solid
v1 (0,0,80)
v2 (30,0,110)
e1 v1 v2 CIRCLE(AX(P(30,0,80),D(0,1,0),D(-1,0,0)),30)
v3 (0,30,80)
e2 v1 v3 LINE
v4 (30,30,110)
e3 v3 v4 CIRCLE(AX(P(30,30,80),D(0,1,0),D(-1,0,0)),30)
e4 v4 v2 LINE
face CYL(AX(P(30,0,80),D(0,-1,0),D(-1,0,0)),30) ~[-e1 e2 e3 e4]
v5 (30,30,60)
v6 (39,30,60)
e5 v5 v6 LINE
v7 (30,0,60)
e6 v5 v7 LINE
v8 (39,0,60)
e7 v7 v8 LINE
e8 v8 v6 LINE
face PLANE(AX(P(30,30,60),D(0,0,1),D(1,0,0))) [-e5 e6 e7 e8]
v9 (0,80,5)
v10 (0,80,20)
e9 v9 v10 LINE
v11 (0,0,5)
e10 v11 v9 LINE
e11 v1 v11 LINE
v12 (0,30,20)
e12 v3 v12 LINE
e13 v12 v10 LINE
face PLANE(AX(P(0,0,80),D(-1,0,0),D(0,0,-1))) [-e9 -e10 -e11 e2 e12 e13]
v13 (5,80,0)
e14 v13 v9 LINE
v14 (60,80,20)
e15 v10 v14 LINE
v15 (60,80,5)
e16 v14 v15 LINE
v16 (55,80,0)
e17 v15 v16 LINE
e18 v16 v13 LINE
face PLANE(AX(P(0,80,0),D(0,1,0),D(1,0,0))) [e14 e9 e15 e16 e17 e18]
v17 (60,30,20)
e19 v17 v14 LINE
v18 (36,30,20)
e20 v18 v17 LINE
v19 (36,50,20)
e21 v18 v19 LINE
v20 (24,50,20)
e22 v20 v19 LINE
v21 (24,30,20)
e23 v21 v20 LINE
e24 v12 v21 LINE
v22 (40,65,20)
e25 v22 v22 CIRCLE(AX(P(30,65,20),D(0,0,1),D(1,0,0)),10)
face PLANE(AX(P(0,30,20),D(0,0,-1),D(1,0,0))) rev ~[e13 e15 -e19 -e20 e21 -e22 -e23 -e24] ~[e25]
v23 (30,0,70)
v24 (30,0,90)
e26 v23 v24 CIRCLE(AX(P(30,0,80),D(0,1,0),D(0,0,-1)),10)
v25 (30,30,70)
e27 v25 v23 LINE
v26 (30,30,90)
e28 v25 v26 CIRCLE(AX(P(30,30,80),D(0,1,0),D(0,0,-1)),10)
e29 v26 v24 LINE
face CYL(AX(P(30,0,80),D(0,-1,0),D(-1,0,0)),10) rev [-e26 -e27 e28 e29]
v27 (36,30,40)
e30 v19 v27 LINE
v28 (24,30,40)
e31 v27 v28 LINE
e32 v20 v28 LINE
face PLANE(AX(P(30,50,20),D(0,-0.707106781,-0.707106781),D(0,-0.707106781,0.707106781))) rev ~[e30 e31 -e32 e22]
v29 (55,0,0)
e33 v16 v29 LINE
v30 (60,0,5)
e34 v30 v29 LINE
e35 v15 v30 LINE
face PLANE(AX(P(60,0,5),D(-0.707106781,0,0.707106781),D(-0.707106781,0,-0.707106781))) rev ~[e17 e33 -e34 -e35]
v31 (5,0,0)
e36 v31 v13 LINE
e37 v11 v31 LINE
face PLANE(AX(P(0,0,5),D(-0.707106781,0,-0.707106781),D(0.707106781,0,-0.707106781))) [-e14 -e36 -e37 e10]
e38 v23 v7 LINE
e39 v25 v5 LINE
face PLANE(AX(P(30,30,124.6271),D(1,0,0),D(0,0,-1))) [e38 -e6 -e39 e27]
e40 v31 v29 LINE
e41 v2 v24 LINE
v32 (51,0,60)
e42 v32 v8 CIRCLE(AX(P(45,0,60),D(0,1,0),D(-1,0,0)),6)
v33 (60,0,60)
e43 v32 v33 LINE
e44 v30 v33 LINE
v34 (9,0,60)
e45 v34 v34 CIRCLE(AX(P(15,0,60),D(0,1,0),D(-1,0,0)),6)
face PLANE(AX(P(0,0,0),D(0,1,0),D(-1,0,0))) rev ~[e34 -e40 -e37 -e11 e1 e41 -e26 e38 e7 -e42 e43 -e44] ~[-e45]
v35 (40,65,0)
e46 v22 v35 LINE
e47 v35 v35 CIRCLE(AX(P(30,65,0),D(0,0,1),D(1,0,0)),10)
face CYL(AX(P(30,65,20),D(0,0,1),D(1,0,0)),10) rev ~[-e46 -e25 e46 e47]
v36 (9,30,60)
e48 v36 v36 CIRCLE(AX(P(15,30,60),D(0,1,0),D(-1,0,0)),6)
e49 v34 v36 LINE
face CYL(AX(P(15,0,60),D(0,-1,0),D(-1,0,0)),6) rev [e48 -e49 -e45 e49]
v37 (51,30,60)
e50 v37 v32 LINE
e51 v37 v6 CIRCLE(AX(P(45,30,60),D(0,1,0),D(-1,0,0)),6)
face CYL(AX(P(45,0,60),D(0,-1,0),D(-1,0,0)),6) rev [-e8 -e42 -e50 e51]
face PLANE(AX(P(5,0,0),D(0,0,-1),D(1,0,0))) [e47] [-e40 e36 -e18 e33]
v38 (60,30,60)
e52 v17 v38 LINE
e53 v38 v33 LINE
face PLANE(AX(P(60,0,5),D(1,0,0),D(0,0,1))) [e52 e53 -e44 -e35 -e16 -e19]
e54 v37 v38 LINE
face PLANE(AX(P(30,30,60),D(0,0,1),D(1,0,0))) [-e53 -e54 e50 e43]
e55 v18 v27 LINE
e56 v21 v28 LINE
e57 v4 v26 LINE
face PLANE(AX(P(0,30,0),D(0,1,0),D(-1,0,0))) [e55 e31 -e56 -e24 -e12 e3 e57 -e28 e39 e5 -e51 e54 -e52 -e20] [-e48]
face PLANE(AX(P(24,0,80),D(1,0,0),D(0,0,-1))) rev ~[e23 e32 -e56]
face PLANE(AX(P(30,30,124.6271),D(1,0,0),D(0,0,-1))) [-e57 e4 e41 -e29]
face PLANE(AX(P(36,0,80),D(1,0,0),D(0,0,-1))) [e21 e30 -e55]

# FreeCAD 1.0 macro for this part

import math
import FreeCAD as App
import Part
import Sketcher
from FreeCAD import Vector
Q = App.Units.Quantity

doc = App.newDocument("Part")
body = doc.addObject("PartDesign::Body", "Body")

# Sketch on XZ plane
sketch1 = body.newObject("Sketcher::SketchObject", "Sketch")
sketch1.AttachmentSupport = (doc.getObject("XZ_Plane"), [""])
sketch1.MapMode = "FlatFace"
sketch1.addGeometry([
    Part.LineSegment(Vector(55, 0, 0), Vector(5, 0, 0)),  # 0
    Part.LineSegment(Vector(5, 0, 0), Vector(0, 5, 0)),  # 1
    Part.LineSegment(Vector(0, 5, 0), Vector(0, 80, 0)),  # 2
    Part.ArcOfCircle(Part.Circle(Vector(30, 80, 0), Vector(0, 0, 1), 30), math.radians(0), math.radians(180)),  # 3
    Part.LineSegment(Vector(60, 80, 0), Vector(60, 5, 0)),  # 4
    Part.LineSegment(Vector(60, 5, 0), Vector(55, 0, 0)),  # 5
    Part.Circle(Vector(45, 60, 0), Vector(0, 0, 1), 6),  # 6
    Part.Circle(Vector(30, 80, 0), Vector(0, 0, 1), 10),  # 7
    Part.Circle(Vector(15, 60, 0), Vector(0, 0, 1), 6),  # 8
], False)
sketch1.addConstraint([
    Sketcher.Constraint("Coincident", 0, 2, 1, 1),
    Sketcher.Constraint("Coincident", 1, 2, 2, 1),
    Sketcher.Constraint("Tangent", 2, 2, 3, 2),
    Sketcher.Constraint("Tangent", 3, 1, 4, 1),
    Sketcher.Constraint("Coincident", 4, 2, 5, 1),
    Sketcher.Constraint("Coincident", 5, 2, 0, 1),
    Sketcher.Constraint("Horizontal", 0),
    Sketcher.Constraint("Vertical", 2),
    Sketcher.Constraint("Vertical", 4),
    Sketcher.Constraint("Coincident", 7, 3, 3, 3),
    Sketcher.Constraint("Equal", 6, 8),
    Sketcher.Constraint("PointOnObject", 0, 2, -1),
    Sketcher.Constraint("PointOnObject", 1, 2, -2),
    Sketcher.Constraint("Perpendicular", 1, 5),
    Sketcher.Constraint("Horizontal", 6, 3, 8, 3),
    Sketcher.Constraint("Horizontal", 1, 2, 4, 2),
    Sketcher.Constraint("Equal", 1, 5),
    Sketcher.Constraint("Diameter", 6, Q("12 mm")),
    Sketcher.Constraint("Diameter", 7, Q("20 mm")),
    Sketcher.Constraint("DistanceY", -1, 1, 3, 3, Q("80 mm")),
    Sketcher.Constraint("DistanceX", -1, 1, 6, 3, Q("45 mm")),
    Sketcher.Constraint("DistanceX", -1, 1, 0, 2, Q("5 mm")),
    Sketcher.Constraint("Radius", 3, Q("30 mm")),
    Sketcher.Constraint("DistanceY", 6, 3, 3, 3, Q("20 mm")),
    Sketcher.Constraint("DistanceX", 8, 3, 3, 1, Q("45 mm")),
])
pad1 = body.newObject("PartDesign::Pad", "Pad")
pad1.Profile = sketch1
pad1.Length = 30
pad1.Reversed = True

# Sketch on XZ plane
sketch2 = body.newObject("Sketcher::SketchObject", "Sketch001")
sketch2.AttachmentSupport = (doc.getObject("XZ_Plane"), [""])
sketch2.MapMode = "FlatFace"
sketch2.AttachmentOffset = App.Placement(Vector(0, 0, -30), App.Rotation())
sketch2.addGeometry([
    Part.LineSegment(Vector(0, 5, 0), Vector(0, 20, 0)),  # 0
    Part.LineSegment(Vector(0, 20, 0), Vector(60, 20, 0)),  # 1
    Part.LineSegment(Vector(60, 20, 0), Vector(60, 5, 0)),  # 2
    Part.LineSegment(Vector(60, 5, 0), Vector(55, 0, 0)),  # 3
    Part.LineSegment(Vector(55, 0, 0), Vector(5, 0, 0)),  # 4
    Part.LineSegment(Vector(5, 0, 0), Vector(0, 5, 0)),  # 5
], False)
sketch2.addConstraint([
    Sketcher.Constraint("Coincident", 0, 2, 1, 1),
    Sketcher.Constraint("Coincident", 1, 2, 2, 1),
    Sketcher.Constraint("Coincident", 2, 2, 3, 1),
    Sketcher.Constraint("Coincident", 3, 2, 4, 1),
    Sketcher.Constraint("Coincident", 4, 2, 5, 1),
    Sketcher.Constraint("Coincident", 5, 2, 0, 1),
    Sketcher.Constraint("Vertical", 0),
    Sketcher.Constraint("Horizontal", 1),
    Sketcher.Constraint("Vertical", 2),
    Sketcher.Constraint("Horizontal", 4),
    Sketcher.Constraint("PointOnObject", 0, 2, -2),
    Sketcher.Constraint("PointOnObject", 3, 2, -1),
    Sketcher.Constraint("Perpendicular", 3, 5),
    Sketcher.Constraint("Horizontal", 2, 2, 5, 2),
    Sketcher.Constraint("Equal", 3, 5),
    Sketcher.Constraint("DistanceX", 1, 1, 1, 2, Q("60 mm")),
    Sketcher.Constraint("DistanceX", 4, 2, 4, 1, Q("50 mm")),
    Sketcher.Constraint("DistanceY", 0, 1, 0, 2, Q("15 mm")),
])
pad2 = body.newObject("PartDesign::Pad", "Pad001")
pad2.Profile = sketch2
pad2.Length = 50
pad2.Reversed = True

# Sketch on XY plane
sketch3 = body.newObject("Sketcher::SketchObject", "Sketch002")
sketch3.AttachmentSupport = (doc.getObject("XY_Plane"), [""])
sketch3.MapMode = "FlatFace"
sketch3.AttachmentOffset = App.Placement(Vector(0, 0, 20), App.Rotation())
sketch3.addGeometry(Part.Circle(Vector(30, 65, 0), Vector(0, 0, 1), 10), False)
sketch3.addConstraint([
    Sketcher.Constraint("Diameter", 0, Q("20 mm")),
    Sketcher.Constraint("DistanceX", -1, 1, 0, 3, Q("30 mm")),
    Sketcher.Constraint("DistanceY", -1, 1, 0, 3, Q("65 mm")),
])
pocket1 = body.newObject("PartDesign::Pocket", "Pocket")
pocket1.Profile = sketch3
pocket1.Length = 50

# Sketch on YZ plane
sketch4 = body.newObject("Sketcher::SketchObject", "Sketch003")
sketch4.AttachmentSupport = (doc.getObject("YZ_Plane"), [""])
sketch4.MapMode = "FlatFace"
sketch4.AttachmentOffset = App.Placement(Vector(0, 0, 30), App.Rotation())
sketch4.addGeometry([
    Part.LineSegment(Vector(30, 40, 0), Vector(30, 20, 0)),
    Part.LineSegment(Vector(30, 20, 0), Vector(50, 20, 0)),
    Part.LineSegment(Vector(50, 20, 0), Vector(30, 40, 0)),
], False)
sketch4.addConstraint([
    Sketcher.Constraint("Coincident", 0, 2, 1, 1),
    Sketcher.Constraint("Coincident", 1, 2, 2, 1),
    Sketcher.Constraint("Coincident", 2, 2, 0, 1),
    Sketcher.Constraint("Vertical", 0),
    Sketcher.Constraint("Horizontal", 1),
    Sketcher.Constraint("Equal", 1, 0),
    Sketcher.Constraint("DistanceX", 1, 1, 1, 2, Q("20 mm")),
    Sketcher.Constraint("DistanceY", -1, 1, 0, 2, Q("20 mm")),
    Sketcher.Constraint("DistanceX", -1, 1, 0, 2, Q("30 mm")),
])
pad3 = body.newObject("PartDesign::Pad", "Pad002")
pad3.Profile = sketch4
pad3.Length = 12
pad3.Midplane = True

# Sketch on XZ plane
sketch5 = body.newObject("Sketcher::SketchObject", "Sketch004")
sketch5.AttachmentSupport = (doc.getObject("XZ_Plane"), [""])
sketch5.MapMode = "FlatFace"
sketch5.AttachmentOffset = App.Placement(Vector(0, 0, -30), App.Rotation())
sketch5.addGeometry([
    Part.LineSegment(Vector(72, 60, 0), Vector(30, 60, 0)),
    Part.LineSegment(Vector(30, 60, 0), Vector(30, 125, 0)),
    Part.LineSegment(Vector(30, 125, 0), Vector(72, 125, 0)),
    Part.LineSegment(Vector(72, 125, 0), Vector(72, 60, 0)),
], False)
sketch5.addConstraint([
    Sketcher.Constraint("Coincident", 0, 2, 1, 1),
    Sketcher.Constraint("Coincident", 1, 2, 2, 1),
    Sketcher.Constraint("Coincident", 2, 2, 3, 1),
    Sketcher.Constraint("Coincident", 3, 2, 0, 1),
    Sketcher.Constraint("Horizontal", 0),
    Sketcher.Constraint("Vertical", 1),
    Sketcher.Constraint("Horizontal", 2),
    Sketcher.Constraint("Vertical", 3),
    Sketcher.Constraint("DistanceX", -1, 1, 0, 2, Q("30 mm")),
    Sketcher.Constraint("DistanceY", -1, 1, 0, 2, Q("60 mm")),
    Sketcher.Constraint("DistanceX", 0, 2, 0, 1, Q("41.643 mm")),
    Sketcher.Constraint("DistanceY", 1, 1, 1, 2, Q("64.627 mm")),
])
pocket2 = body.newObject("PartDesign::Pocket", "Pocket001")
pocket2.Profile = sketch5
pocket2.Length = 50
pocket2.Reversed = True

doc.recompute()
